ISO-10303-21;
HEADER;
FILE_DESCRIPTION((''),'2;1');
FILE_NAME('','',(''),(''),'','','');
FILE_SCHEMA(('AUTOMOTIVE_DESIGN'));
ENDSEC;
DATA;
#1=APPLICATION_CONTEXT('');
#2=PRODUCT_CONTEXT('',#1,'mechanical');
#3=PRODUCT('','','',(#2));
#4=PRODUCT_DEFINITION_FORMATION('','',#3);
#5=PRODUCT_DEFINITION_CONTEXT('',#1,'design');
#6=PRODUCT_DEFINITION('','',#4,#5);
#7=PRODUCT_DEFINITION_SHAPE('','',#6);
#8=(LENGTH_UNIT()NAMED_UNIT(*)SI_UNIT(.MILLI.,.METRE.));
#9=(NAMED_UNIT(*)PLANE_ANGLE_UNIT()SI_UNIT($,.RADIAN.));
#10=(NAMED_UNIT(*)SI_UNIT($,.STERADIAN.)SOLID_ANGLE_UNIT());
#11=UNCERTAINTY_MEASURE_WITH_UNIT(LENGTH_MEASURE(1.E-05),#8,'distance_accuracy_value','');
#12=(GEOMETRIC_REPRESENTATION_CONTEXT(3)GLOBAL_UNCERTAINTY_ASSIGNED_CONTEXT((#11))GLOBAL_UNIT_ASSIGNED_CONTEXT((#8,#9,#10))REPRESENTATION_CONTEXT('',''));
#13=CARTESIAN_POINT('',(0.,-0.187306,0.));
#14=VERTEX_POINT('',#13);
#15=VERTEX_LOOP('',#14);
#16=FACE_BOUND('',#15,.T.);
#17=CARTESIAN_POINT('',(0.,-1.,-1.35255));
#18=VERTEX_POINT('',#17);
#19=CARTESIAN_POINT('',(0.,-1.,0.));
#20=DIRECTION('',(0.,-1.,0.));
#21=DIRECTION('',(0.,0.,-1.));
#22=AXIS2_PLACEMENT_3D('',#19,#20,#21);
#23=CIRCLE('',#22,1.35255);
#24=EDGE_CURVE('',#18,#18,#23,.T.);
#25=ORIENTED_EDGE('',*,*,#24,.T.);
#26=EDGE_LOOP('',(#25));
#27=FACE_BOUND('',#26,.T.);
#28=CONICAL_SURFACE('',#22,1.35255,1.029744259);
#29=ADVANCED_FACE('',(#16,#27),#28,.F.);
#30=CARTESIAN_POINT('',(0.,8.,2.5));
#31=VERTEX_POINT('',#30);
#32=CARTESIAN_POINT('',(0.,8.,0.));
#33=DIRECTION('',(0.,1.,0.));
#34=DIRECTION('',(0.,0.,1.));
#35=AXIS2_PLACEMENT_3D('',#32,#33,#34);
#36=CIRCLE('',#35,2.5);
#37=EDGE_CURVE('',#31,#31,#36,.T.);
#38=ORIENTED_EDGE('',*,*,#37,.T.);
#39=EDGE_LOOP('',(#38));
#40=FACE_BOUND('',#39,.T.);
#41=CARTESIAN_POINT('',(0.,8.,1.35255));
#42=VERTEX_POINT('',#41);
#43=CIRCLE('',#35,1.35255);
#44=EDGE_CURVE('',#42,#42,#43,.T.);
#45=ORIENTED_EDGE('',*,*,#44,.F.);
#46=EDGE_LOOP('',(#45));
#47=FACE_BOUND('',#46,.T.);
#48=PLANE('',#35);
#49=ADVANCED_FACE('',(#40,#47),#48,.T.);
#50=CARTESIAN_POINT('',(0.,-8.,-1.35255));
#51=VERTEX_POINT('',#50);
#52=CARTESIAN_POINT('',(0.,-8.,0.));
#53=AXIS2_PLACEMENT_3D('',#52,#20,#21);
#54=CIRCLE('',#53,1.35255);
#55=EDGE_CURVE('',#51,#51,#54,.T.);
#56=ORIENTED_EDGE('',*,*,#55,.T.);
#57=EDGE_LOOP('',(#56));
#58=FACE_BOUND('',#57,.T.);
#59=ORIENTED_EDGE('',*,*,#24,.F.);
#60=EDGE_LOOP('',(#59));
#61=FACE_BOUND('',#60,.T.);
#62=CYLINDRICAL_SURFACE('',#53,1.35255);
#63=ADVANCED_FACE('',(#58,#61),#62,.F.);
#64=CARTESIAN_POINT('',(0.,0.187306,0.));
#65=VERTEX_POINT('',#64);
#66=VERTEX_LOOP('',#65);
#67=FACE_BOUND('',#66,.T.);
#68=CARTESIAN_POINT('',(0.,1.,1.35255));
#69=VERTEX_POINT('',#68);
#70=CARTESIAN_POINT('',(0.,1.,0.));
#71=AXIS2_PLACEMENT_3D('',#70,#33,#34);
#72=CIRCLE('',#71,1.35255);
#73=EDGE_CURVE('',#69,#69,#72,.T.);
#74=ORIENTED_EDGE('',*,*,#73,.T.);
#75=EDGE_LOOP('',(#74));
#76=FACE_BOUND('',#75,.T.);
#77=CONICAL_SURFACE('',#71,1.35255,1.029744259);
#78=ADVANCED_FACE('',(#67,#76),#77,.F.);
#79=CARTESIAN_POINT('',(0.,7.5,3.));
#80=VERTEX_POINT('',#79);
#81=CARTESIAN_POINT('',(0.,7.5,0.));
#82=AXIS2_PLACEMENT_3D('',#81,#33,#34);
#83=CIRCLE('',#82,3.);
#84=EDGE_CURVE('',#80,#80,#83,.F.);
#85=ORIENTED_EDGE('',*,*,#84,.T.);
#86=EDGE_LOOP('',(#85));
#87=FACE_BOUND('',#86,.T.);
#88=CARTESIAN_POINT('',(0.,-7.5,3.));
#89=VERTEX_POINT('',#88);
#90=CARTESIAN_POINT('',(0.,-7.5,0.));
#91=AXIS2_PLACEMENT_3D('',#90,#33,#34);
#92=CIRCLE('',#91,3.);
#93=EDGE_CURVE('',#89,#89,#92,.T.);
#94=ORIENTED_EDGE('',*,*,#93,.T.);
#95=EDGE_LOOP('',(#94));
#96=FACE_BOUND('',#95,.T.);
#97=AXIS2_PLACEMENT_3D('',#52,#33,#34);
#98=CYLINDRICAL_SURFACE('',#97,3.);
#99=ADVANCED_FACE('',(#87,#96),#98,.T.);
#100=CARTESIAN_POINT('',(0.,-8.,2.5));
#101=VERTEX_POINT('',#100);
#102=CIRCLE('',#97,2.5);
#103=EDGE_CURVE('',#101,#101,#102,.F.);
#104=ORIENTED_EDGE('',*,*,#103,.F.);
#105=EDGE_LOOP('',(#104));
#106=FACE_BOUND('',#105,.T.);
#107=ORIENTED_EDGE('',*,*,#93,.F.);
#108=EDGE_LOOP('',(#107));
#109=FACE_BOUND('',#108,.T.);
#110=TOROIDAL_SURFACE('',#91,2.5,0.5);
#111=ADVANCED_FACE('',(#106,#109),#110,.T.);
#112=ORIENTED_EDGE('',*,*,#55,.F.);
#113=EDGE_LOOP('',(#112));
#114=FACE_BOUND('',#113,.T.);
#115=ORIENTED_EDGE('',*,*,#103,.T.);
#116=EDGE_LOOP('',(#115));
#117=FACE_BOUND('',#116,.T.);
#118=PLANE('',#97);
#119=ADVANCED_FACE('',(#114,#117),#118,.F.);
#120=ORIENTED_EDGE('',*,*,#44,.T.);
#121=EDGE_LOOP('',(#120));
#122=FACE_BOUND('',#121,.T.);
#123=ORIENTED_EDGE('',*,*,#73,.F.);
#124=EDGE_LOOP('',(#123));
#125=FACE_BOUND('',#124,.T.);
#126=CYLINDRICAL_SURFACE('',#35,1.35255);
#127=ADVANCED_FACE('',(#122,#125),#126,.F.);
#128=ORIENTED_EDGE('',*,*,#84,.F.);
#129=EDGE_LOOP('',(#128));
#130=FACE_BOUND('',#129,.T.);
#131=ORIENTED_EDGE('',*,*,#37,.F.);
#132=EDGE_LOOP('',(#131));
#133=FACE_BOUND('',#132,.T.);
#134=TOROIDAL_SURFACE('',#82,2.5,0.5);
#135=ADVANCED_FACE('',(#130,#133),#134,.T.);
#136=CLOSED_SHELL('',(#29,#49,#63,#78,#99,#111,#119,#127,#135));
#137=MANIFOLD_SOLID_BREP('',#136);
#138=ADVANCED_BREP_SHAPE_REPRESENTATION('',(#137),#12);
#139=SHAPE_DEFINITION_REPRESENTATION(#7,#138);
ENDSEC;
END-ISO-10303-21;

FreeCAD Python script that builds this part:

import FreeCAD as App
import Part
import Sketcher

V = App.Vector
Q = App.Units.Quantity


def edges_at(feature, points):
    """Names of the edges that pass closest to the given points."""
    edges = feature.Shape.Edges
    near = lambda p: min(range(len(edges)), key=lambda i: edges[i].distToShape(Part.Vertex(*p))[0])
    return sorted({f"Edge{near(p) + 1}" for p in points})

doc = App.newDocument("Part")
body = doc.addObject("PartDesign::Body", "Body")

# Sketch on XZ plane
sketch1 = body.newObject("Sketcher::SketchObject", "Sketch")
sketch1.AttachmentSupport = (doc.getObject("XZ_Plane"), [""])
sketch1.MapMode = "FlatFace"
sketch1.addGeometry(Part.Circle(V(0, 0, 0), V(0, 0, 1), 3), False)
sketch1.addConstraint([
    Sketcher.Constraint("Coincident", 0, 3, -1, 1),
    Sketcher.Constraint("Diameter", 0, Q("6 mm")),
])
pad1 = body.newObject("PartDesign::Pad", "Pad")
pad1.Profile = sketch1
pad1.Type = "TwoLengths"
pad1.Length = 8
pad1.Length2 = 8
pad1.Reversed = True

# Sketch on XZ plane
sketch2 = body.newObject("Sketcher::SketchObject", "Sketch001")
sketch2.AttachmentSupport = (doc.getObject("XZ_Plane"), [""])
sketch2.MapMode = "FlatFace"
sketch2.AttachmentOffset = App.Placement(V(0, 0, -8), App.Rotation())
sketch2.addGeometry(Part.Circle(V(0, 0, 0), V(0, 0, 1), 1.4), False)
sketch2.addConstraint([
    Sketcher.Constraint("Coincident", 0, 3, -1, 1),
    Sketcher.Constraint("Diameter", 0, Q("2.7051 mm")),
])
doc.recompute()
hole = body.newObject("PartDesign::Hole", "Hole")
hole.Profile = sketch2
hole.ThreadType = "None"
hole.Diameter = 2.7051
hole.DepthType = "Dimension"
hole.Depth = 7
hole.DrillPoint = "Angled"
hole.DrillPointAngle = 118
hole.Reversed = True

# Sketch on XZ plane
sketch3 = body.newObject("Sketcher::SketchObject", "Sketch002")
sketch3.AttachmentSupport = (doc.getObject("XZ_Plane"), [""])
sketch3.MapMode = "FlatFace"
sketch3.AttachmentOffset = App.Placement(V(0, 0, 8), App.Rotation())
sketch3.addGeometry(Part.Circle(V(0, 0, 0), V(0, 0, 1), 1.4), False)
sketch3.addConstraint([
    Sketcher.Constraint("Coincident", 0, 3, -1, 1),
    Sketcher.Constraint("Diameter", 0, Q("2.7051 mm")),
])
doc.recompute()
hole2 = body.newObject("PartDesign::Hole", "Hole001")
hole2.Profile = sketch3
hole2.ThreadType = "None"
hole2.Diameter = 2.7051
hole2.DepthType = "Dimension"
hole2.Depth = 7
hole2.DrillPoint = "Angled"
hole2.DrillPointAngle = 118
doc.recompute()

fillet = body.newObject("PartDesign::Fillet", "Fillet")
fillet.Base = (hole2, edges_at(hole2, [(0, -8, -3), (0, 8, -3)]))
fillet.Radius = 0.5

doc.recompute()
